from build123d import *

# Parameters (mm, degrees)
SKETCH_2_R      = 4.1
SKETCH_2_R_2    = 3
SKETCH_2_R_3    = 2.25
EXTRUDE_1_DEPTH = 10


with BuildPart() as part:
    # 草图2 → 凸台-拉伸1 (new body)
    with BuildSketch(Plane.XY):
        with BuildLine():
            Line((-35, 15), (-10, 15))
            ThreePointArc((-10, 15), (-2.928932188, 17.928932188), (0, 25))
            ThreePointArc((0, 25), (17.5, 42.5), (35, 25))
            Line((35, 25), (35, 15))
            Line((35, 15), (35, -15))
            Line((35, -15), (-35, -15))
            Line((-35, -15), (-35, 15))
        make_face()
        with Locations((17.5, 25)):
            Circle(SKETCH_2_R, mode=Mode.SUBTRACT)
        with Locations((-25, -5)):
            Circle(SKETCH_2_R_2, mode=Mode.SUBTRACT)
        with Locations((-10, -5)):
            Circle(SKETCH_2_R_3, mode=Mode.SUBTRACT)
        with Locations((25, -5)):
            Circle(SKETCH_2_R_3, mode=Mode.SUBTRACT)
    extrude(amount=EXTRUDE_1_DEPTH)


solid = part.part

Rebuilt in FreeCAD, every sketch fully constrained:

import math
import FreeCAD as App
import Part
import Sketcher

V = App.Vector
Q = App.Units.Quantity

doc = App.newDocument("Part")
body = doc.addObject("PartDesign::Body", "Body")

# Sketch on XY plane
sketch1 = body.newObject("Sketcher::SketchObject", "Sketch")
sketch1.AttachmentSupport = (doc.getObject("XY_Plane"), [""])
sketch1.MapMode = "FlatFace"
sketch1.addGeometry([
    Part.LineSegment(V(-10, 15, 0), V(-35, 15, 0)),  # 0
    Part.LineSegment(V(-35, 15, 0), V(-35, -15, 0)),  # 1
    Part.LineSegment(V(-35, -15, 0), V(35, -15, 0)),  # 2
    Part.LineSegment(V(35, -15, 0), V(35, 25, 0)),  # 3
    Part.ArcOfCircle(Part.Circle(V(17.5, 25, 0), V(0, 0, 1), 17.5), math.radians(0), math.radians(180)),  # 4
    Part.ArcOfCircle(Part.Circle(V(-10, 25, 0), V(0, 0, 1), 10), math.radians(-90), math.radians(0)),  # 5
    Part.Circle(V(25, -5, 0), V(0, 0, 1), 2.2),  # 6
    Part.Circle(V(-10, -5, 0), V(0, 0, 1), 2.2),  # 7
    Part.Circle(V(-25, -5, 0), V(0, 0, 1), 3),  # 8
    Part.Circle(V(17.5, 25, 0), V(0, 0, 1), 4.1),  # 9
], False)
sketch1.addConstraint([
    Sketcher.Constraint("Coincident", 0, 2, 1, 1),
    Sketcher.Constraint("Coincident", 1, 2, 2, 1),
    Sketcher.Constraint("Coincident", 2, 2, 3, 1),
    Sketcher.Constraint("Tangent", 3, 2, 4, 1),
    Sketcher.Constraint("Tangent", 4, 2, 5, 2),
    Sketcher.Constraint("Tangent", 5, 1, 0, 1),
    Sketcher.Constraint("Horizontal", 0),
    Sketcher.Constraint("Vertical", 1),
    Sketcher.Constraint("Horizontal", 2),
    Sketcher.Constraint("Vertical", 3),
    Sketcher.Constraint("Coincident", 9, 3, 4, 3),
    Sketcher.Constraint("Equal", 6, 7),
    Sketcher.Constraint("Symmetric", 0, 2, 2, 2, -1, 1),
    Sketcher.Constraint("Symmetric", 6, 3, 8, 3, -2),
    Sketcher.Constraint("PointOnObject", 4, 2, -2),
    Sketcher.Constraint("Horizontal", 4, 3, 5, 3),
    Sketcher.Constraint("Horizontal", 6, 3, 7, 3),
    Sketcher.Constraint("Vertical", 5, 3, 7, 3),
    Sketcher.Constraint("Diameter", 8, Q("6 mm")),
    Sketcher.Constraint("Radius", 5, Q("10 mm")),
    Sketcher.Constraint("Diameter", 6, Q("4.5 mm")),
    Sketcher.Constraint("Diameter", 9, Q("8.2 mm")),
    Sketcher.Constraint("Radius", 4, Q("17.5 mm")),
    Sketcher.Constraint("DistanceY", 1, 2, 1, 1, Q("30 mm")),
    Sketcher.Constraint("DistanceX", -1, 1, 6, 3, Q("25 mm")),
    Sketcher.Constraint("DistanceY", 6, 3, -1, 1, Q("5 mm")),
])
pad1 = body.newObject("PartDesign::Pad", "Pad")
pad1.Profile = sketch1
pad1.Length = 10

doc.recompute()
